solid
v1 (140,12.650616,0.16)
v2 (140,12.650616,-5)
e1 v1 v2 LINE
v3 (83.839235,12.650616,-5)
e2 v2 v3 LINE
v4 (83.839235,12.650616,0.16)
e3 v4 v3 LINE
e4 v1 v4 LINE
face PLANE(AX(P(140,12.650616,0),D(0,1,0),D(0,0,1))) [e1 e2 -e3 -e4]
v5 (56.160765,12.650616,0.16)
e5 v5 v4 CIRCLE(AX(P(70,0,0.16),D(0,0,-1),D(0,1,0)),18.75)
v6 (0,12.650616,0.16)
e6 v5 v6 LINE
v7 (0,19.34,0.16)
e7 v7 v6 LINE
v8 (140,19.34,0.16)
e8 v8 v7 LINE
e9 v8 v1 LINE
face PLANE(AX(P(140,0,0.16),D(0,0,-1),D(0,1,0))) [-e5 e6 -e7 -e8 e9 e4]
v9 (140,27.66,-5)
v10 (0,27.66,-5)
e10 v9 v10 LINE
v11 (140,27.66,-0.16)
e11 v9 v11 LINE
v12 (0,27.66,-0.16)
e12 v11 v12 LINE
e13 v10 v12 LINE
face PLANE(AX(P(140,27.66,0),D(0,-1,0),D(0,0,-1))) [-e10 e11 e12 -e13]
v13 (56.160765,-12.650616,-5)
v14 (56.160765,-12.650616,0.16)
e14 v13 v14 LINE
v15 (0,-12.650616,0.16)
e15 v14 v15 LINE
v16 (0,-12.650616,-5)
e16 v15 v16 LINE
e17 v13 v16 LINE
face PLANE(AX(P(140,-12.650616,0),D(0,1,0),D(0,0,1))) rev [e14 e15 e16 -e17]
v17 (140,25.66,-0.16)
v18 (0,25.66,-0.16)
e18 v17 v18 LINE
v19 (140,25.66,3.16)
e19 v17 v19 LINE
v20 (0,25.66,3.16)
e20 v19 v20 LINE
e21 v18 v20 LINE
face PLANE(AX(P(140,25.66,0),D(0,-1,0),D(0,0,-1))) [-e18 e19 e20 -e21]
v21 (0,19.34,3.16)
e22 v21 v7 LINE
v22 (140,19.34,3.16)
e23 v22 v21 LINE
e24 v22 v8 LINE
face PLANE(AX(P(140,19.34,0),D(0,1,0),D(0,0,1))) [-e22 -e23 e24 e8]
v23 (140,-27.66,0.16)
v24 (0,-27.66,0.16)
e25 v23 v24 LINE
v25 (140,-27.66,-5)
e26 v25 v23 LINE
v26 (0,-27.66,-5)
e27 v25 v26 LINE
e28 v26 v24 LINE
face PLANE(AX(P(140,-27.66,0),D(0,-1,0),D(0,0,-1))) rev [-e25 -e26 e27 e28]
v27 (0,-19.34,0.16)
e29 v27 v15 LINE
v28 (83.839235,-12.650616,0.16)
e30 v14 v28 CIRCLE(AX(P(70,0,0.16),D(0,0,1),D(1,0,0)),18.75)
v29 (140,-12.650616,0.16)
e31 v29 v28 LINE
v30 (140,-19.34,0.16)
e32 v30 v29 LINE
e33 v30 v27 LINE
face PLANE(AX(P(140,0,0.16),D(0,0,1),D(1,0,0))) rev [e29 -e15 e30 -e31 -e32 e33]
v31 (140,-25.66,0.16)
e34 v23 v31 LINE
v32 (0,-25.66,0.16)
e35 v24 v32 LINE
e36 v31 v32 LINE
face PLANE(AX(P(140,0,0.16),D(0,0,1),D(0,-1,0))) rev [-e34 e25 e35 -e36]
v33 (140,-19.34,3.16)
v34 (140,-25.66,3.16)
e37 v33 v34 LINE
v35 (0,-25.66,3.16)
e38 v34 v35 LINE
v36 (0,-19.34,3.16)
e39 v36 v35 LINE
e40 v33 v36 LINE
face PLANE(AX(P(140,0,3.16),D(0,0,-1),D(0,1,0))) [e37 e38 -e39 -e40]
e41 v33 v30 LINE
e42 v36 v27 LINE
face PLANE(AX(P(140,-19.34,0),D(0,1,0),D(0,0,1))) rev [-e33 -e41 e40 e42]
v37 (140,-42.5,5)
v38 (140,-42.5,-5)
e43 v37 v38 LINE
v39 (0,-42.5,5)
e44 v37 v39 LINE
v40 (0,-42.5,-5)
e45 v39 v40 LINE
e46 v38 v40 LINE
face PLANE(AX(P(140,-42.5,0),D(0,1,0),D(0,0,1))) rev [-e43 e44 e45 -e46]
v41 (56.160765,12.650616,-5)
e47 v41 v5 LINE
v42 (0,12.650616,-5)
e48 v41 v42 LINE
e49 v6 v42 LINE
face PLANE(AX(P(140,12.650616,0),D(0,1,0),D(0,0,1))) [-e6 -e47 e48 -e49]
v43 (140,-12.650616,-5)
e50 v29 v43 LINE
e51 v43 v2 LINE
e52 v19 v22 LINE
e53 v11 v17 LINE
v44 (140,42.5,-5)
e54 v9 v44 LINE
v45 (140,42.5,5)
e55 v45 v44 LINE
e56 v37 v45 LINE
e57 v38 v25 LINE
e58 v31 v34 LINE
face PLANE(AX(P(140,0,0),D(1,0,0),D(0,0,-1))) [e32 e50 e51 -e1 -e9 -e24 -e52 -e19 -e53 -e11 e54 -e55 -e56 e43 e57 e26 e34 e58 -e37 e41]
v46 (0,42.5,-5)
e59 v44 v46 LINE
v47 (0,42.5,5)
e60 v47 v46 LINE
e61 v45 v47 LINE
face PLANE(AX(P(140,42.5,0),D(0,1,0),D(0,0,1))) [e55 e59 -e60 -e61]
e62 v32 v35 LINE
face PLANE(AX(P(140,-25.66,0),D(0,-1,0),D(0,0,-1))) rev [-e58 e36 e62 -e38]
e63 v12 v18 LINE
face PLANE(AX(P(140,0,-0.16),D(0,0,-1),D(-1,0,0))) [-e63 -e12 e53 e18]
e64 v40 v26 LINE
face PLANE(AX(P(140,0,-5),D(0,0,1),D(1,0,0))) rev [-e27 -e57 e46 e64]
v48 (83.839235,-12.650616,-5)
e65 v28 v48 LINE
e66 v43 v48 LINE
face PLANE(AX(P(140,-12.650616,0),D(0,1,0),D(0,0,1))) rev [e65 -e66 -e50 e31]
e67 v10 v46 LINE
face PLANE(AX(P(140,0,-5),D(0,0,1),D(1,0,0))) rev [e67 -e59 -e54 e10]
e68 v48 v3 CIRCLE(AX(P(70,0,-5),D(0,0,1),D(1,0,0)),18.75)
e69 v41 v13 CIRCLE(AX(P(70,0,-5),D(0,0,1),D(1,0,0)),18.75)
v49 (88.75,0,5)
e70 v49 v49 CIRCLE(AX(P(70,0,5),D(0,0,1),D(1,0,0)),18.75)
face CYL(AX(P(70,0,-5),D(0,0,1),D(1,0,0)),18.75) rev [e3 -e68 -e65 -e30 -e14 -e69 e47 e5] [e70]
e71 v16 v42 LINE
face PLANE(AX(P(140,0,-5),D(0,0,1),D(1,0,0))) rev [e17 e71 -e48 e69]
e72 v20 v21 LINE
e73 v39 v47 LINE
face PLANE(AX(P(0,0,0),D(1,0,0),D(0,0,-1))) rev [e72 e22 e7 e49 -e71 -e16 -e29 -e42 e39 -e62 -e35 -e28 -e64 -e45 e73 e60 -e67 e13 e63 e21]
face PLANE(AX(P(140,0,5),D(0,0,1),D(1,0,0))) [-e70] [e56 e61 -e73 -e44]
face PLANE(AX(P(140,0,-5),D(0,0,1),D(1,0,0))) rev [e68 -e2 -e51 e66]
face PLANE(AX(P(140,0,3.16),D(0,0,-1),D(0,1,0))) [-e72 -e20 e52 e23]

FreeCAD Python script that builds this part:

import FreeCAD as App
import Part
import Sketcher
from FreeCAD import Vector
Q = App.Units.Quantity


def add_polygon(sketch, points):
    """Adds a closed chain of lines whose ends are joined by coincident constraints."""
    first, n = sketch.GeometryCount, len(points)
    for a, b in zip(points, points[1:] + points[:1]):
        sketch.addGeometry(Part.LineSegment(App.Vector(*a, 0), App.Vector(*b, 0)), False)
    for i in range(n):
        sketch.addConstraint(Sketcher.Constraint("Coincident", first + i, 2, first + (i + 1) % n, 1))

doc = App.newDocument("Part")
body = doc.addObject("PartDesign::Body", "Body")

sketch1 = doc.addObject("Sketcher::SketchObject", "Sketch")
body.addObject(sketch1)
sketch1.AttachmentSupport = (doc.YZ_Plane, [""])
sketch1.MapMode = "FlatFace"
add_polygon(sketch1, [(27.7, -0.2), (27.7, -5), (42.5, -5), (42.5, 5), (-42.5, 5), (-42.5, -5), (-27.7, -5), (-27.7, 0.2), (-25.7, 0.2), (-25.7, 3.2), (-19.3, 3.2), (-19.3, 0.2), (-12.7, 0.2), (-12.7, -5), (12.7, -5), (12.7, 0.2), (19.3, 0.2), (19.3, 3.2), (25.7, 3.2), (25.7, -0.2)])
sketch1.addConstraint([
    Sketcher.Constraint("Vertical", 0),
    Sketcher.Constraint("Horizontal", 1),
    Sketcher.Constraint("Vertical", 2),
    Sketcher.Constraint("Horizontal", 3),
    Sketcher.Constraint("Vertical", 4),
    Sketcher.Constraint("Horizontal", 5),
    Sketcher.Constraint("Vertical", 6),
    Sketcher.Constraint("Horizontal", 7),
    Sketcher.Constraint("Vertical", 8),
    Sketcher.Constraint("Horizontal", 9),
    Sketcher.Constraint("Vertical", 10),
    Sketcher.Constraint("Horizontal", 11),
    Sketcher.Constraint("Vertical", 12),
    Sketcher.Constraint("Horizontal", 13),
    Sketcher.Constraint("Vertical", 14),
    Sketcher.Constraint("Horizontal", 15),
    Sketcher.Constraint("Vertical", 16),
    Sketcher.Constraint("Horizontal", 17),
    Sketcher.Constraint("Vertical", 18),
    Sketcher.Constraint("Horizontal", 19),
    Sketcher.Constraint("Symmetric", 1, 2, 3, 2, -1, 1),
    Sketcher.Constraint("Symmetric", 7, 2, 18, 2, -1, 1),
    Sketcher.Constraint("Symmetric", 0, 2, 5, 2, -2),
    Sketcher.Constraint("Symmetric", 11, 2, 14, 2, -2),
    Sketcher.Constraint("Symmetric", 9, 2, 16, 2, -2),
    Sketcher.Constraint("Horizontal", 7, 2, 10, 2),
    Sketcher.Constraint("Horizontal", 5, 2, 12, 2),
    Sketcher.Constraint("DistanceX", 3, 2, 3, 1, Q("85 mm")),
    Sketcher.Constraint("DistanceX", 7, 1, 7, 2, Q("2 mm")),
    Sketcher.Constraint("DistanceY", 2, 1, 2, 2, Q("10 mm")),
    Sketcher.Constraint("DistanceY", 8, 1, 8, 2, Q("3 mm")),
    Sketcher.Constraint("DistanceX", 1, 1, 1, 2, Q("14.84 mm")),
    Sketcher.Constraint("DistanceX", 9, 1, 9, 2, Q("6.32 mm")),
    Sketcher.Constraint("DistanceY", 0, 2, 0, 1, Q("4.84 mm")),
    Sketcher.Constraint("DistanceX", 13, 1, 13, 2, Q("25.301231 mm")),
])
pad1 = doc.addObject("PartDesign::Pad", "Pad")
body.addObject(pad1)
pad1.Profile = sketch1
pad1.Length = 140

sketch2 = doc.addObject("Sketcher::SketchObject", "Sketch001")
body.addObject(sketch2)
sketch2.AttachmentSupport = (doc.XY_Plane, [""])
sketch2.MapMode = "FlatFace"
sketch2.AttachmentOffset = App.Placement(Vector(0, 0, 5), App.Rotation())
sketch2.addGeometry(Part.Circle(Vector(70, 0, 0), Vector(0, 0, 1), 19), False)
sketch2.addConstraint([
    Sketcher.Constraint("PointOnObject", 0, 3, -1),
    Sketcher.Constraint("Diameter", 0, Q("37.5 mm")),
    Sketcher.Constraint("DistanceX", -1, 1, 0, 3, Q("70 mm")),
])
pocket1 = doc.addObject("PartDesign::Pocket", "Pocket")
body.addObject(pocket1)
pocket1.Profile = sketch2
pocket1.Type = "ThroughAll"

doc.recompute()
